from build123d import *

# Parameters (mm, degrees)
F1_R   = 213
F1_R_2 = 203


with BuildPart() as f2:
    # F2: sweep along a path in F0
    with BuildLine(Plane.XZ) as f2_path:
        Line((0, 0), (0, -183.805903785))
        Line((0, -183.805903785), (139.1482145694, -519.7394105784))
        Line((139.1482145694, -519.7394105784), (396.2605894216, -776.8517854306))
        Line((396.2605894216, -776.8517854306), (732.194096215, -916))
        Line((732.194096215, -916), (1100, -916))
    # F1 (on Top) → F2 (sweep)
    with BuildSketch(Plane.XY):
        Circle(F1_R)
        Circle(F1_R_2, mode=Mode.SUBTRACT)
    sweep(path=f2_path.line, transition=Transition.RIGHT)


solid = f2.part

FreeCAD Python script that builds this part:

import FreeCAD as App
import Part
import Sketcher
Q = App.Units.Quantity

doc = App.newDocument("Part")
params = doc.addObject("Spreadsheet::Sheet", "Params")
for row, (alias, value) in enumerate([
    ("sketch1_diameter", "426 mm"),
    ("sketch1_diameter2", "406 mm"),
], start=1):
    params.set(f"A{row}", alias)
    params.set(f"B{row}", "=" + value)
    params.setAlias(f"B{row}", alias)

body = doc.addObject("PartDesign::Body", "Body")

# Sketch on XY plane
sketch1 = doc.addObject("Sketcher::SketchObject", "Sketch")
body.addObject(sketch1)
sketch1.AttachmentSupport = (doc.XY_Plane, [""])
sketch1.MapMode = "FlatFace"
sketch1.addGeometry([
    Part.Circle(App.Vector(0, 0, 0), App.Vector(0, 0, 1), 213),
    Part.Circle(App.Vector(0, 0, 0), App.Vector(0, 0, 1), 203),
], False)
sketch1.addConstraint([
    Sketcher.Constraint("Coincident", 0, 3, -1, 1),
    Sketcher.Constraint("Coincident", 1, 3, -1, 1),
    Sketcher.Constraint("Diameter", 0, 426.0),
    Sketcher.Constraint("Diameter", 1, 406.0),
])
sketch1.setExpression("Constraints[2]", "Params.sketch1_diameter")
sketch1.setExpression("Constraints[3]", "Params.sketch1_diameter2")

# Sketch on XZ plane
sketch2 = doc.addObject("Sketcher::SketchObject", "Sketch001")
body.addObject(sketch2)
sketch2.AttachmentSupport = (doc.XZ_Plane, [""])
sketch2.MapMode = "FlatFace"
sketch2.addGeometry([
    Part.LineSegment(App.Vector(0, 0, 0), App.Vector(0, -184, 0)),  # 0
    Part.LineSegment(App.Vector(0, -184, 0), App.Vector(139, -520, 0)),  # 1
    Part.LineSegment(App.Vector(139, -520, 0), App.Vector(396, -777, 0)),  # 2
    Part.LineSegment(App.Vector(396, -777, 0), App.Vector(732, -916, 0)),  # 3
    Part.LineSegment(App.Vector(732, -916, 0), App.Vector(1100, -916, 0)),  # 4
], False)
sketch2.addConstraint([
    Sketcher.Constraint("Coincident", 0, 2, 1, 1),
    Sketcher.Constraint("Coincident", 1, 2, 2, 1),
    Sketcher.Constraint("Coincident", 2, 2, 3, 1),
    Sketcher.Constraint("Coincident", 3, 2, 4, 1),
    Sketcher.Constraint("Vertical", 0),
    Sketcher.Constraint("Horizontal", 4),
    Sketcher.Constraint("Coincident", 0, 1, -1, 1),
    Sketcher.Constraint("Equal", 1, 2),
    Sketcher.Constraint("Equal", 2, 3),
    Sketcher.Constraint("Angle", 2, Q("-45 deg")),
    Sketcher.Constraint("DistanceY", 3, 2, -1, 1, 916.0),
    Sketcher.Constraint("DistanceX", -1, 1, 4, 2, 1100.0),
    Sketcher.Constraint("Angle", 1, Q("-67.5 deg")),
    Sketcher.Constraint("Angle", 3, Q("-22.5 deg")),
    Sketcher.Constraint("DistanceX", 4, 1, 4, 2, 367.805904),
])
doc.recompute()

additivepipe = doc.addObject("PartDesign::AdditivePipe", "AdditivePipe")
body.addObject(additivepipe)
additivepipe.Profile = sketch1
additivepipe.Spine = (sketch2, ["Edge1", "Edge2", "Edge3", "Edge4", "Edge5"])
additivepipe.Transition = "Right corner"

doc.recompute()
